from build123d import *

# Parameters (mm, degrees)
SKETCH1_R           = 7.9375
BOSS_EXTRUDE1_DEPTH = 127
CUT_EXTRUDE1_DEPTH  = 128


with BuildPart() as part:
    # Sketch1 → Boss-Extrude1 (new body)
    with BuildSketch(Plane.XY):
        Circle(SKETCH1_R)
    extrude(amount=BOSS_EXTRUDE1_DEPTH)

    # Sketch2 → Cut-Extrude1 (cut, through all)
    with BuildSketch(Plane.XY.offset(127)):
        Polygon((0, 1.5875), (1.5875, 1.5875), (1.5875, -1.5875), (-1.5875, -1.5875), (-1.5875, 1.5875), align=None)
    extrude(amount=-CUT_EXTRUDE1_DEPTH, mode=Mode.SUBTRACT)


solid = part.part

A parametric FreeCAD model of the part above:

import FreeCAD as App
import Part
import Sketcher
Q = App.Units.Quantity


def add_polygon(sketch, points):
    """Adds a closed chain of lines whose ends are joined by coincident constraints."""
    first, n = sketch.GeometryCount, len(points)
    for a, b in zip(points, points[1:] + points[:1]):
        sketch.addGeometry(Part.LineSegment(App.Vector(*a, 0), App.Vector(*b, 0)), False)
    for i in range(n):
        sketch.addConstraint(Sketcher.Constraint("Coincident", first + i, 2, first + (i + 1) % n, 1))

doc = App.newDocument("Part")
params = doc.addObject("Spreadsheet::Sheet", "Params")
for row, (alias, value) in enumerate([
    ("sketch1_diameter", "0.625 in"),
    ("pad1_length", "5 in"),
    ("sketch2_width", "0.125 in"),
], start=1):
    params.set(f"A{row}", alias)
    params.set(f"B{row}", "=" + value)
    params.setAlias(f"B{row}", alias)

body = doc.addObject("PartDesign::Body", "Body")

sketch1 = body.newObject("Sketcher::SketchObject", "Sketch")
sketch1.AttachmentSupport = (doc.getObject("XY_Plane"), [""])
sketch1.MapMode = "FlatFace"
sketch1.addGeometry(Part.Circle(App.Vector(0, 0, 0), App.Vector(0, 0, 1), 8), False)
sketch1.addConstraint(Sketcher.Constraint("Coincident", 0, 3, -1, 1))
sketch1.addConstraint(Sketcher.Constraint("Diameter", 0, Q("0.625 in")))
sketch1.setExpression("Constraints[1]", "Params.sketch1_diameter")
pad1 = body.newObject("PartDesign::Pad", "Pad")
pad1.Profile = sketch1
pad1.setExpression("Length", "Params.pad1_length")

sketch2 = body.newObject("Sketcher::SketchObject", "Sketch001")
sketch2.AttachmentSupport = (doc.getObject("XY_Plane"), [""])
sketch2.MapMode = "FlatFace"
sketch2.AttachmentOffset = App.Placement(App.Vector(0, 0, 5 * 25.4), App.Rotation())
add_polygon(sketch2, [(1.6, 1.6), (-1.6, 1.6), (-1.6, -1.6), (1.6, -1.6)])
sketch2.addConstraint(Sketcher.Constraint("Horizontal", 0))
sketch2.addConstraint(Sketcher.Constraint("Vertical", 1))
sketch2.addConstraint(Sketcher.Constraint("Horizontal", 2))
sketch2.addConstraint(Sketcher.Constraint("Vertical", 3))
sketch2.addConstraint(Sketcher.Constraint("Symmetric", 0, 2, 2, 2, -1, 1))
sketch2.addConstraint(Sketcher.Constraint("Equal", 2, 1))
sketch2.addConstraint(Sketcher.Constraint("DistanceX", 0, 2, 0, 1, Q("0.125 in")))
sketch2.setExpression("Constraints[10]", "Params.sketch2_width")
pocket1 = body.newObject("PartDesign::Pocket", "Pocket")
pocket1.Profile = sketch2
pocket1.Type = "ThroughAll"

doc.recompute()
